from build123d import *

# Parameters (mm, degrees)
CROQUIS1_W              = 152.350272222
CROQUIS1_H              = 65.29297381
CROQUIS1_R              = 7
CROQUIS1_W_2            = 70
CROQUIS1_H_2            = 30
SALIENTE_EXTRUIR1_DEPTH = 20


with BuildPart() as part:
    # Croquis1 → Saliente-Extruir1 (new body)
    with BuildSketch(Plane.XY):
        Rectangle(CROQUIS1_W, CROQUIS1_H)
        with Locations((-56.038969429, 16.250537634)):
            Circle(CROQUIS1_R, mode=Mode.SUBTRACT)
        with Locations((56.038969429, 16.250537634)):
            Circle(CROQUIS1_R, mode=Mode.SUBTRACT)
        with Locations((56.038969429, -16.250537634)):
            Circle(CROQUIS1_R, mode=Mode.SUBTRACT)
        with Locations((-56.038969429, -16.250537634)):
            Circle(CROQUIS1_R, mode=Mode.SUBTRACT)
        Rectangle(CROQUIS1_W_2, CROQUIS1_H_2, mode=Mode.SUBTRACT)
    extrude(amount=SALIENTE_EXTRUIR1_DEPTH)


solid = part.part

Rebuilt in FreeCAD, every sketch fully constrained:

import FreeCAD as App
import Part
import Sketcher

V = App.Vector

doc = App.newDocument("Part")
body = doc.addObject("PartDesign::Body", "Body")

# Sketch on XY plane
sketch1 = body.newObject("Sketcher::SketchObject", "Sketch")
sketch1.AttachmentSupport = (doc.getObject("XY_Plane"), [""])
sketch1.MapMode = "FlatFace"
sketch1.addGeometry([
    Part.LineSegment(V(-76.175136, 32.646487, 0), V(-76.175136, -32.646487, 0)),  # 0
    Part.LineSegment(V(-76.175136, -32.646487, 0), V(76.175136, -32.646487, 0)),  # 1
    Part.LineSegment(V(76.175136, -32.646487, 0), V(76.175136, 32.646487, 0)),  # 2
    Part.LineSegment(V(76.175136, 32.646487, 0), V(-76.175136, 32.646487, 0)),  # 3
    Part.Circle(V(-56.038969, -16.250538, 0), V(0, 0, 1), 7),  # 4
    Part.Circle(V(56.038969, -16.250538, 0), V(0, 0, 1), 7),  # 5
    Part.Circle(V(-56.038969, 16.250538, 0), V(0, 0, 1), 7),  # 6
    Part.LineSegment(V(35, -15, 0), V(-35, -15, 0)),  # 7
    Part.LineSegment(V(-35, -15, 0), V(-35, 15, 0)),  # 8
    Part.LineSegment(V(-35, 15, 0), V(35, 15, 0)),  # 9
    Part.LineSegment(V(35, 15, 0), V(35, -15, 0)),  # 10
    Part.Circle(V(56.038969, 16.250538, 0), V(0, 0, 1), 7),  # 11
], False)
sketch1.addConstraint([
    Sketcher.Constraint("Coincident", 0, 2, 1, 1),
    Sketcher.Constraint("Coincident", 1, 2, 2, 1),
    Sketcher.Constraint("Coincident", 2, 2, 3, 1),
    Sketcher.Constraint("Coincident", 3, 2, 0, 1),
    Sketcher.Constraint("Coincident", 7, 2, 8, 1),
    Sketcher.Constraint("Coincident", 8, 2, 9, 1),
    Sketcher.Constraint("Coincident", 9, 2, 10, 1),
    Sketcher.Constraint("Coincident", 10, 2, 7, 1),
    Sketcher.Constraint("Vertical", 0),
    Sketcher.Constraint("Horizontal", 1),
    Sketcher.Constraint("Vertical", 2),
    Sketcher.Constraint("Horizontal", 3),
    Sketcher.Constraint("Horizontal", 7),
    Sketcher.Constraint("Vertical", 8),
    Sketcher.Constraint("Horizontal", 9),
    Sketcher.Constraint("Vertical", 10),
    Sketcher.Constraint("Equal", 4, 5),
    Sketcher.Constraint("Equal", 5, 6),
    Sketcher.Constraint("Equal", 6, 11),
    Sketcher.Constraint("Symmetric", 5, 3, 6, 3, -1, 1),
    Sketcher.Constraint("Symmetric", 4, 3, 11, 3, -1, 1),
    Sketcher.Constraint("Symmetric", 0, 2, 2, 2, -1, 1),
    Sketcher.Constraint("Symmetric", 7, 2, 9, 2, -1, 1),
    Sketcher.Constraint("Symmetric", 4, 3, 5, 3, -2),
    Sketcher.Constraint("Diameter", 4, 14.0),
    Sketcher.Constraint("DistanceX", 7, 2, 7, 1, 70.0),
    Sketcher.Constraint("DistanceY", 8, 1, 8, 2, 30.0),
    Sketcher.Constraint("DistanceX", 1, 1, 1, 2, 152.350272),
    Sketcher.Constraint("DistanceY", 0, 2, 0, 1, 65.292974),
    Sketcher.Constraint("DistanceX", 4, 3, -1, 1, 56.038969),
    Sketcher.Constraint("DistanceY", 0, 2, 4, 3, 16.395949),
])
pad1 = body.newObject("PartDesign::Pad", "Pad")
pad1.Profile = sketch1
pad1.Length = 20

doc.recompute()
